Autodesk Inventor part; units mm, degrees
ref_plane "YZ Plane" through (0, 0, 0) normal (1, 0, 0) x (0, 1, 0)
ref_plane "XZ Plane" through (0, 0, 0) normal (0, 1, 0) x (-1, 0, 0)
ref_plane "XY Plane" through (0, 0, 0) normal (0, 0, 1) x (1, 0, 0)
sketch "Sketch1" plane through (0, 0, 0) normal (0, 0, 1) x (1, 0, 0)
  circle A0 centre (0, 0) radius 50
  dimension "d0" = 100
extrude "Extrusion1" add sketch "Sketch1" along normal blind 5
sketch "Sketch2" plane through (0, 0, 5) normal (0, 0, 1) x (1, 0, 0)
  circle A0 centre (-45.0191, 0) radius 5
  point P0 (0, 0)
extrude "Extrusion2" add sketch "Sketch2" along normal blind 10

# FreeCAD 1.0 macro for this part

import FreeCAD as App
import Part
import Sketcher
Q = App.Units.Quantity

doc = App.newDocument("Part")
params = doc.addObject("Spreadsheet::Sheet", "Params")
for row, (alias, value) in enumerate([
    ("sketch1_diameter", "100 mm"),
    ("pad1_length", "5 mm"),
    ("sketch2_diameter", "10 mm"),
    ("pad2_length", "10 mm"),
], start=1):
    params.set(f"A{row}", alias)
    params.set(f"B{row}", "=" + value)
    params.setAlias(f"B{row}", alias)

body = doc.addObject("PartDesign::Body", "Body")

# Sketch on XY plane
sketch1 = doc.addObject("Sketcher::SketchObject", "Sketch")
body.addObject(sketch1)
sketch1.AttachmentSupport = (doc.XY_Plane, [""])
sketch1.MapMode = "FlatFace"
sketch1.addGeometry(Part.Circle(App.Vector(0, 0, 0), App.Vector(0, 0, 1), 50), False)
sketch1.addConstraint(Sketcher.Constraint("Coincident", 0, 3, -1, 1))
sketch1.addConstraint(Sketcher.Constraint("Diameter", 0, Q("100 mm")))
sketch1.setExpression("Constraints[1]", "Params.sketch1_diameter")
pad1 = doc.addObject("PartDesign::Pad", "Pad")
body.addObject(pad1)
pad1.Profile = sketch1
pad1.setExpression("Length", "Params.pad1_length")

# Sketch on XY plane
sketch2 = doc.addObject("Sketcher::SketchObject", "Sketch001")
body.addObject(sketch2)
sketch2.AttachmentSupport = (doc.XY_Plane, [""])
sketch2.MapMode = "FlatFace"
sketch2.AttachmentOffset = App.Placement(App.Vector(0, 0, 5), App.Rotation())
sketch2.addGeometry(Part.Circle(App.Vector(-45, 0, 0), App.Vector(0, 0, 1), 5), False)
sketch2.addConstraint(Sketcher.Constraint("PointOnObject", 0, 3, -1))
sketch2.addConstraint(Sketcher.Constraint("Diameter", 0, Q("10 mm")))
sketch2.addConstraint(Sketcher.Constraint("DistanceX", 0, 3, -1, 1, Q("45.019 mm")))
sketch2.setExpression("Constraints[1]", "Params.sketch2_diameter")
pad2 = doc.addObject("PartDesign::Pad", "Pad001")
body.addObject(pad2)
pad2.Profile = sketch2
pad2.setExpression("Length", "Params.pad2_length")

doc.recompute()
